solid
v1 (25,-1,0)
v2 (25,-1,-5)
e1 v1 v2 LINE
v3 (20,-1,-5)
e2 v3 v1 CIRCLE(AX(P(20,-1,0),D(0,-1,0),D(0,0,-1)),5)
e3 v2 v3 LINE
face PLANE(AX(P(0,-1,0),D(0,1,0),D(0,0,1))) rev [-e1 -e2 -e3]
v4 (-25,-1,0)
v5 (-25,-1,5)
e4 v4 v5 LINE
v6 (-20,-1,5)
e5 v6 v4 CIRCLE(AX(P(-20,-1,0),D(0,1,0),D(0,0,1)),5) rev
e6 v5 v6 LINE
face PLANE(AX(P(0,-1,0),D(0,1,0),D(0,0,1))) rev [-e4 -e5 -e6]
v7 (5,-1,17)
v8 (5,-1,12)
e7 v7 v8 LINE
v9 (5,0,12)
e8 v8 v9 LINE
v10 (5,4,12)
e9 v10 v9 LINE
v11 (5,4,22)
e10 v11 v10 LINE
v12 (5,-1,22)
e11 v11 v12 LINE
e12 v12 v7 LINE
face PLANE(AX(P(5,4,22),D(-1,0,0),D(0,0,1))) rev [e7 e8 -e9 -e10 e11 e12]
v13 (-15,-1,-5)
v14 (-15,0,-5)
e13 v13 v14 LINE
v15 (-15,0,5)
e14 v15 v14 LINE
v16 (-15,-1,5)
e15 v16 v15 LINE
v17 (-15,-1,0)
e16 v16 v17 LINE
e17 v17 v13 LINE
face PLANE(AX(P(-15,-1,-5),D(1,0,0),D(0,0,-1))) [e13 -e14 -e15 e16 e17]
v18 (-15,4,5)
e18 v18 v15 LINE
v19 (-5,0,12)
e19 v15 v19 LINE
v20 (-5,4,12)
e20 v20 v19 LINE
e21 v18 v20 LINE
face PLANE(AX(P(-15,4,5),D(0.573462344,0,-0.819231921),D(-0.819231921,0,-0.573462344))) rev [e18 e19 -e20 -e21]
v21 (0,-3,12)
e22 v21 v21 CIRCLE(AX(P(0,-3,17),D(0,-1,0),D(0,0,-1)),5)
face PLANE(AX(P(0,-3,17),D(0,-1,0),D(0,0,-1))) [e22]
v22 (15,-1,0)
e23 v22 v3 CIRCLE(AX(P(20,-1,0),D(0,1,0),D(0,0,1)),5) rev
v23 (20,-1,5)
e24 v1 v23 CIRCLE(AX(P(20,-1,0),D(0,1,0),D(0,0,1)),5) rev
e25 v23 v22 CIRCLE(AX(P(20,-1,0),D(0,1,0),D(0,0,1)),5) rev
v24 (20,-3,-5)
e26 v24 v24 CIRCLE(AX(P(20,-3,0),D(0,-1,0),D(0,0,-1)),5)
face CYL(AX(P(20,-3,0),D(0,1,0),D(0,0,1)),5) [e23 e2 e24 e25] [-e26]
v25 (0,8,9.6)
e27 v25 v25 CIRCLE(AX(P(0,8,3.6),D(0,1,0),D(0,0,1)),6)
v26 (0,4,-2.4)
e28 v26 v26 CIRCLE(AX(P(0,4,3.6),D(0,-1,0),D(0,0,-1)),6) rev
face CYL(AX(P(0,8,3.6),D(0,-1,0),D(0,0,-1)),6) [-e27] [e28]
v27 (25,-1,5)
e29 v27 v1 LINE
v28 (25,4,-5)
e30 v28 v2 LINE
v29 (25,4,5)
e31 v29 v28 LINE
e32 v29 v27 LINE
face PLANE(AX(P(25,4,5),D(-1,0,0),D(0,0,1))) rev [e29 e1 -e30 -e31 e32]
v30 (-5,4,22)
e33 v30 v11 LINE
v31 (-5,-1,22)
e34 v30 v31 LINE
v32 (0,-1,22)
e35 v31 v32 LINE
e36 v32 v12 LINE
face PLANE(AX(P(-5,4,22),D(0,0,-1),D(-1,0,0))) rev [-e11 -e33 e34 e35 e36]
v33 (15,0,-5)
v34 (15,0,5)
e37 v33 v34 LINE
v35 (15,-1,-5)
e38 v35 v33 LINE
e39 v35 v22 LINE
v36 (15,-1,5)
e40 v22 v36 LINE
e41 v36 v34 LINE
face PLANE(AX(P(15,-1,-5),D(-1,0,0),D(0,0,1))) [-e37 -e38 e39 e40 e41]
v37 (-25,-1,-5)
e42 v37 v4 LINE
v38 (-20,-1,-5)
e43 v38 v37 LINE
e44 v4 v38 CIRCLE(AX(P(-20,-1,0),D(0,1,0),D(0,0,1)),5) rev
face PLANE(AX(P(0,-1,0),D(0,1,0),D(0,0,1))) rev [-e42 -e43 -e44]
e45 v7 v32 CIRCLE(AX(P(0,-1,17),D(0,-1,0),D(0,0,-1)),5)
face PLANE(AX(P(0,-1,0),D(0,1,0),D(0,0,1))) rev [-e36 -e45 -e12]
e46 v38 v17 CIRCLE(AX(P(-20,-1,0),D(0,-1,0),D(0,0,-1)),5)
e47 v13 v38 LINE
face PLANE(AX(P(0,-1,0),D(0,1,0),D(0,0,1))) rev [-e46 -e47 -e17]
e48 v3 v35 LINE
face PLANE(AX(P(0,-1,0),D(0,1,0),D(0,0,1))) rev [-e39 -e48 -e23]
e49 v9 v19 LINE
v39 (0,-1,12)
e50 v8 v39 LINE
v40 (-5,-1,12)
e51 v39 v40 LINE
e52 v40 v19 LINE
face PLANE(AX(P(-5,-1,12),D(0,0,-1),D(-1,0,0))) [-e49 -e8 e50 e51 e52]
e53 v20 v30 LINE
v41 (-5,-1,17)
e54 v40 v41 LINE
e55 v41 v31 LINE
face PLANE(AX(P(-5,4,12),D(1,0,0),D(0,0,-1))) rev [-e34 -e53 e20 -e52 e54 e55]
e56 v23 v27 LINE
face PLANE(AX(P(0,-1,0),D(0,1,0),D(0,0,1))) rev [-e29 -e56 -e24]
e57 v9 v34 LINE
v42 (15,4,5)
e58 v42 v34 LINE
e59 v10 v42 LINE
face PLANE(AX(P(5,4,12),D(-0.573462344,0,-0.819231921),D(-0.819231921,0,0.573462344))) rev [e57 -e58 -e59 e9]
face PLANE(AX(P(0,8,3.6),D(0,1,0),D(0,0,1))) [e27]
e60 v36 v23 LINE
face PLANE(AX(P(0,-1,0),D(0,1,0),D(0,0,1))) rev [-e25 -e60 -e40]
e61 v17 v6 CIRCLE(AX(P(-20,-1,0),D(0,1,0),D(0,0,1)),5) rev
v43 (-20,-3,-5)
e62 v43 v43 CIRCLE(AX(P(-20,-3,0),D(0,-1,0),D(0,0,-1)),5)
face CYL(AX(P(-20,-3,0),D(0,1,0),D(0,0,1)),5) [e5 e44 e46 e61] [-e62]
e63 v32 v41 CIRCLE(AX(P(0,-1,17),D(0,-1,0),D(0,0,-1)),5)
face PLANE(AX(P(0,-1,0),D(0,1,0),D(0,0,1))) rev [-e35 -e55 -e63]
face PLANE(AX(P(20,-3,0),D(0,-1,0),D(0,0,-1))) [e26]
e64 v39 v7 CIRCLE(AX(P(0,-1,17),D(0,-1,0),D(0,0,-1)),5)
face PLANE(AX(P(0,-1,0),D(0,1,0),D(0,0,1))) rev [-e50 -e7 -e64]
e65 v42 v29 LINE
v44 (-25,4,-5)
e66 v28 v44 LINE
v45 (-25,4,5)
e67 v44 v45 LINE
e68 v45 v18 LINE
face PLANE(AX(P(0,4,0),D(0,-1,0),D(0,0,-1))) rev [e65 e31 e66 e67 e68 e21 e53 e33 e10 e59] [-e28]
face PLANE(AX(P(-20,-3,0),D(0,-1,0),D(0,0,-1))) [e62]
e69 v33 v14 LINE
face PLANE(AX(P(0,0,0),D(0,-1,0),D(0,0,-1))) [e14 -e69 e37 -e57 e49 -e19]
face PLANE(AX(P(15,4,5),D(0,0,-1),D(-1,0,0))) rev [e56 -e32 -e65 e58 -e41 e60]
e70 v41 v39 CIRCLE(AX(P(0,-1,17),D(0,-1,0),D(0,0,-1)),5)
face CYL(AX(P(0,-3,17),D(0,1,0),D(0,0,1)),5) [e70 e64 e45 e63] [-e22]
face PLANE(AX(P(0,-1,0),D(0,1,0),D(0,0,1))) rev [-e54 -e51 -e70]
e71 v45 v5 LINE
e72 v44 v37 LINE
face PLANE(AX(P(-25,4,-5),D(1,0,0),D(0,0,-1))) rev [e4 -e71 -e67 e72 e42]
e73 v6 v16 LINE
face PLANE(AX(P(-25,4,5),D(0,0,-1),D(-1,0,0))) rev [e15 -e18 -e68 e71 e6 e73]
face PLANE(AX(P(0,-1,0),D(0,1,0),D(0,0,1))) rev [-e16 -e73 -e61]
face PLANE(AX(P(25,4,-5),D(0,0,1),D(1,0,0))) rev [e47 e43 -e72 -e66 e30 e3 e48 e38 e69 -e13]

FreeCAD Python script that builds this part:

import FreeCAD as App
import Part
import Sketcher

V = App.Vector

doc = App.newDocument("Part")
body = doc.addObject("PartDesign::Body", "Body")

sketch1 = doc.addObject("Sketcher::SketchObject", "Sketch")
body.addObject(sketch1)
sketch1.AttachmentSupport = (doc.XZ_Plane, [""])
sketch1.MapMode = "FlatFace"
sketch1.addGeometry([
    Part.LineSegment(V(-5, 22, 0), V(5, 22, 0)),
    Part.LineSegment(V(5, 22, 0), V(5, 12, 0)),
    Part.LineSegment(V(5, 12, 0), V(15, 5, 0)),
    Part.LineSegment(V(15, 5, 0), V(25, 5, 0)),
    Part.LineSegment(V(25, 5, 0), V(25, -5, 0)),
    Part.LineSegment(V(25, -5, 0), V(-25, -5, 0)),
    Part.LineSegment(V(-25, -5, 0), V(-25, 5, 0)),
    Part.LineSegment(V(-25, 5, 0), V(-15, 5, 0)),
    Part.LineSegment(V(-15, 5, 0), V(-5, 12, 0)),
    Part.LineSegment(V(-5, 12, 0), V(-5, 22, 0)),
], False)
sketch1.addConstraint([
    Sketcher.Constraint("Coincident", 0, 2, 1, 1),
    Sketcher.Constraint("Coincident", 1, 2, 2, 1),
    Sketcher.Constraint("Coincident", 2, 2, 3, 1),
    Sketcher.Constraint("Coincident", 3, 2, 4, 1),
    Sketcher.Constraint("Coincident", 4, 2, 5, 1),
    Sketcher.Constraint("Coincident", 5, 2, 6, 1),
    Sketcher.Constraint("Coincident", 6, 2, 7, 1),
    Sketcher.Constraint("Coincident", 7, 2, 8, 1),
    Sketcher.Constraint("Coincident", 8, 2, 9, 1),
    Sketcher.Constraint("Coincident", 9, 2, 0, 1),
    Sketcher.Constraint("Horizontal", 0),
    Sketcher.Constraint("Vertical", 1),
    Sketcher.Constraint("Horizontal", 3),
    Sketcher.Constraint("Vertical", 4),
    Sketcher.Constraint("Horizontal", 5),
    Sketcher.Constraint("Vertical", 6),
    Sketcher.Constraint("Horizontal", 7),
    Sketcher.Constraint("Vertical", 9),
    Sketcher.Constraint("Symmetric", 3, 2, 5, 2, -1, 1),
    Sketcher.Constraint("Symmetric", 2, 2, 7, 2, -2),
    Sketcher.Constraint("Symmetric", 1, 2, 8, 2, -2),
    Sketcher.Constraint("Equal", 0, 3),
    Sketcher.Constraint("Equal", 7, 1),
    Sketcher.Constraint("Equal", 1, 4),
    Sketcher.Constraint("DistanceX", 0, 1, 0, 2, 10.0),
    Sketcher.Constraint("DistanceX", 5, 2, 5, 1, 50.0),
    Sketcher.Constraint("DistanceY", -1, 1, 0, 2, 22.0),
])
pad1 = doc.addObject("PartDesign::Pad", "Pad")
body.addObject(pad1)
pad1.Profile = sketch1
pad1.Length = 4
pad1.Reversed = True

sketch2 = doc.addObject("Sketcher::SketchObject", "Sketch001")
body.addObject(sketch2)
sketch2.AttachmentSupport = (doc.XZ_Plane, [""])
sketch2.MapMode = "FlatFace"
sketch2.addGeometry([
    Part.LineSegment(V(-25, -5, 0), V(-25, 5, 0)),
    Part.LineSegment(V(-25, 5, 0), V(-15, 5, 0)),
    Part.LineSegment(V(-15, 5, 0), V(-15, -5, 0)),
    Part.LineSegment(V(-15, -5, 0), V(-25, -5, 0)),
    Part.LineSegment(V(15, -5, 0), V(15, 5, 0)),
    Part.LineSegment(V(15, 5, 0), V(25, 5, 0)),
    Part.LineSegment(V(25, 5, 0), V(25, -5, 0)),
    Part.LineSegment(V(25, -5, 0), V(15, -5, 0)),
    Part.LineSegment(V(-5, 12, 0), V(-5, 22, 0)),
    Part.LineSegment(V(-5, 22, 0), V(5, 22, 0)),
    Part.LineSegment(V(5, 22, 0), V(5, 12, 0)),
    Part.LineSegment(V(5, 12, 0), V(-5, 12, 0)),
], False)
sketch2.addConstraint([
    Sketcher.Constraint("Coincident", 0, 2, 1, 1),
    Sketcher.Constraint("Coincident", 1, 2, 2, 1),
    Sketcher.Constraint("Coincident", 2, 2, 3, 1),
    Sketcher.Constraint("Coincident", 3, 2, 0, 1),
    Sketcher.Constraint("Coincident", 4, 2, 5, 1),
    Sketcher.Constraint("Coincident", 5, 2, 6, 1),
    Sketcher.Constraint("Coincident", 6, 2, 7, 1),
    Sketcher.Constraint("Coincident", 7, 2, 4, 1),
    Sketcher.Constraint("Coincident", 8, 2, 9, 1),
    Sketcher.Constraint("Coincident", 9, 2, 10, 1),
    Sketcher.Constraint("Coincident", 10, 2, 11, 1),
    Sketcher.Constraint("Coincident", 11, 2, 8, 1),
    Sketcher.Constraint("Vertical", 0),
    Sketcher.Constraint("Horizontal", 1),
    Sketcher.Constraint("Vertical", 2),
    Sketcher.Constraint("Horizontal", 3),
    Sketcher.Constraint("Vertical", 4),
    Sketcher.Constraint("Horizontal", 5),
    Sketcher.Constraint("Vertical", 6),
    Sketcher.Constraint("Horizontal", 7),
    Sketcher.Constraint("Vertical", 8),
    Sketcher.Constraint("Horizontal", 9),
    Sketcher.Constraint("Vertical", 10),
    Sketcher.Constraint("Horizontal", 11),
    Sketcher.Constraint("Symmetric", 2, 2, 4, 2, -1, 1),
    Sketcher.Constraint("Symmetric", 0, 2, 6, 2, -1, 1),
    Sketcher.Constraint("Horizontal", 1, 2, 4, 2),
    Sketcher.Constraint("Equal", 7, 9),
    Sketcher.Constraint("Equal", 11, 0),
    Sketcher.Constraint("Equal", 6, 8),
    Sketcher.Constraint("DistanceX", 1, 1, 1, 2, 10.0),
    Sketcher.Constraint("DistanceX", 0, 2, -1, 1, 25.0),
    Sketcher.Constraint("DistanceX", 8, 2, -1, 1, 5.0),
    Sketcher.Constraint("DistanceY", -1, 1, 8, 2, 22.0),
])
pad2 = doc.addObject("PartDesign::Pad", "Pad001")
body.addObject(pad2)
pad2.Profile = sketch2
pad2.Length = 1

sketch3 = doc.addObject("Sketcher::SketchObject", "Sketch002")
body.addObject(sketch3)
sketch3.AttachmentSupport = (doc.XZ_Plane, [""])
sketch3.MapMode = "FlatFace"
sketch3.AttachmentOffset = App.Placement(V(0, 0, -4), App.Rotation())
sketch3.addGeometry(Part.Circle(V(0, 4, 0), V(0, 0, 1), 6), False)
sketch3.addConstraint([
    Sketcher.Constraint("PointOnObject", 0, 3, -2),
    Sketcher.Constraint("Diameter", 0, 12.0),
    Sketcher.Constraint("DistanceY", -1, 1, 0, 3, 3.6),
])
pad3 = doc.addObject("PartDesign::Pad", "Pad002")
body.addObject(pad3)
pad3.Profile = sketch3
pad3.Length = 4
pad3.Reversed = True

sketch4 = doc.addObject("Sketcher::SketchObject", "Sketch003")
body.addObject(sketch4)
sketch4.AttachmentSupport = (doc.XZ_Plane, [""])
sketch4.MapMode = "FlatFace"
sketch4.AttachmentOffset = App.Placement(V(0, 0, 1), App.Rotation())
sketch4.addGeometry([
    Part.Circle(V(0, 17, 0), V(0, 0, 1), 5),
    Part.Circle(V(20, 0, 0), V(0, 0, 1), 5),
    Part.Circle(V(-20, 0, 0), V(0, 0, 1), 5),
], False)
sketch4.addConstraint([
    Sketcher.Constraint("Equal", 0, 1),
    Sketcher.Constraint("Equal", 1, 2),
    Sketcher.Constraint("Symmetric", 1, 3, 2, 3, -1, 1),
    Sketcher.Constraint("PointOnObject", 0, 3, -2),
    Sketcher.Constraint("PointOnObject", 1, 3, -1),
    Sketcher.Constraint("Diameter", 0, 10.0),
    Sketcher.Constraint("DistanceY", -1, 1, 0, 3, 17.0),
    Sketcher.Constraint("DistanceX", -1, 1, 1, 3, 20.0),
])
pad4 = doc.addObject("PartDesign::Pad", "Pad003")
body.addObject(pad4)
pad4.Profile = sketch4
pad4.Length = 2

doc.recompute()
